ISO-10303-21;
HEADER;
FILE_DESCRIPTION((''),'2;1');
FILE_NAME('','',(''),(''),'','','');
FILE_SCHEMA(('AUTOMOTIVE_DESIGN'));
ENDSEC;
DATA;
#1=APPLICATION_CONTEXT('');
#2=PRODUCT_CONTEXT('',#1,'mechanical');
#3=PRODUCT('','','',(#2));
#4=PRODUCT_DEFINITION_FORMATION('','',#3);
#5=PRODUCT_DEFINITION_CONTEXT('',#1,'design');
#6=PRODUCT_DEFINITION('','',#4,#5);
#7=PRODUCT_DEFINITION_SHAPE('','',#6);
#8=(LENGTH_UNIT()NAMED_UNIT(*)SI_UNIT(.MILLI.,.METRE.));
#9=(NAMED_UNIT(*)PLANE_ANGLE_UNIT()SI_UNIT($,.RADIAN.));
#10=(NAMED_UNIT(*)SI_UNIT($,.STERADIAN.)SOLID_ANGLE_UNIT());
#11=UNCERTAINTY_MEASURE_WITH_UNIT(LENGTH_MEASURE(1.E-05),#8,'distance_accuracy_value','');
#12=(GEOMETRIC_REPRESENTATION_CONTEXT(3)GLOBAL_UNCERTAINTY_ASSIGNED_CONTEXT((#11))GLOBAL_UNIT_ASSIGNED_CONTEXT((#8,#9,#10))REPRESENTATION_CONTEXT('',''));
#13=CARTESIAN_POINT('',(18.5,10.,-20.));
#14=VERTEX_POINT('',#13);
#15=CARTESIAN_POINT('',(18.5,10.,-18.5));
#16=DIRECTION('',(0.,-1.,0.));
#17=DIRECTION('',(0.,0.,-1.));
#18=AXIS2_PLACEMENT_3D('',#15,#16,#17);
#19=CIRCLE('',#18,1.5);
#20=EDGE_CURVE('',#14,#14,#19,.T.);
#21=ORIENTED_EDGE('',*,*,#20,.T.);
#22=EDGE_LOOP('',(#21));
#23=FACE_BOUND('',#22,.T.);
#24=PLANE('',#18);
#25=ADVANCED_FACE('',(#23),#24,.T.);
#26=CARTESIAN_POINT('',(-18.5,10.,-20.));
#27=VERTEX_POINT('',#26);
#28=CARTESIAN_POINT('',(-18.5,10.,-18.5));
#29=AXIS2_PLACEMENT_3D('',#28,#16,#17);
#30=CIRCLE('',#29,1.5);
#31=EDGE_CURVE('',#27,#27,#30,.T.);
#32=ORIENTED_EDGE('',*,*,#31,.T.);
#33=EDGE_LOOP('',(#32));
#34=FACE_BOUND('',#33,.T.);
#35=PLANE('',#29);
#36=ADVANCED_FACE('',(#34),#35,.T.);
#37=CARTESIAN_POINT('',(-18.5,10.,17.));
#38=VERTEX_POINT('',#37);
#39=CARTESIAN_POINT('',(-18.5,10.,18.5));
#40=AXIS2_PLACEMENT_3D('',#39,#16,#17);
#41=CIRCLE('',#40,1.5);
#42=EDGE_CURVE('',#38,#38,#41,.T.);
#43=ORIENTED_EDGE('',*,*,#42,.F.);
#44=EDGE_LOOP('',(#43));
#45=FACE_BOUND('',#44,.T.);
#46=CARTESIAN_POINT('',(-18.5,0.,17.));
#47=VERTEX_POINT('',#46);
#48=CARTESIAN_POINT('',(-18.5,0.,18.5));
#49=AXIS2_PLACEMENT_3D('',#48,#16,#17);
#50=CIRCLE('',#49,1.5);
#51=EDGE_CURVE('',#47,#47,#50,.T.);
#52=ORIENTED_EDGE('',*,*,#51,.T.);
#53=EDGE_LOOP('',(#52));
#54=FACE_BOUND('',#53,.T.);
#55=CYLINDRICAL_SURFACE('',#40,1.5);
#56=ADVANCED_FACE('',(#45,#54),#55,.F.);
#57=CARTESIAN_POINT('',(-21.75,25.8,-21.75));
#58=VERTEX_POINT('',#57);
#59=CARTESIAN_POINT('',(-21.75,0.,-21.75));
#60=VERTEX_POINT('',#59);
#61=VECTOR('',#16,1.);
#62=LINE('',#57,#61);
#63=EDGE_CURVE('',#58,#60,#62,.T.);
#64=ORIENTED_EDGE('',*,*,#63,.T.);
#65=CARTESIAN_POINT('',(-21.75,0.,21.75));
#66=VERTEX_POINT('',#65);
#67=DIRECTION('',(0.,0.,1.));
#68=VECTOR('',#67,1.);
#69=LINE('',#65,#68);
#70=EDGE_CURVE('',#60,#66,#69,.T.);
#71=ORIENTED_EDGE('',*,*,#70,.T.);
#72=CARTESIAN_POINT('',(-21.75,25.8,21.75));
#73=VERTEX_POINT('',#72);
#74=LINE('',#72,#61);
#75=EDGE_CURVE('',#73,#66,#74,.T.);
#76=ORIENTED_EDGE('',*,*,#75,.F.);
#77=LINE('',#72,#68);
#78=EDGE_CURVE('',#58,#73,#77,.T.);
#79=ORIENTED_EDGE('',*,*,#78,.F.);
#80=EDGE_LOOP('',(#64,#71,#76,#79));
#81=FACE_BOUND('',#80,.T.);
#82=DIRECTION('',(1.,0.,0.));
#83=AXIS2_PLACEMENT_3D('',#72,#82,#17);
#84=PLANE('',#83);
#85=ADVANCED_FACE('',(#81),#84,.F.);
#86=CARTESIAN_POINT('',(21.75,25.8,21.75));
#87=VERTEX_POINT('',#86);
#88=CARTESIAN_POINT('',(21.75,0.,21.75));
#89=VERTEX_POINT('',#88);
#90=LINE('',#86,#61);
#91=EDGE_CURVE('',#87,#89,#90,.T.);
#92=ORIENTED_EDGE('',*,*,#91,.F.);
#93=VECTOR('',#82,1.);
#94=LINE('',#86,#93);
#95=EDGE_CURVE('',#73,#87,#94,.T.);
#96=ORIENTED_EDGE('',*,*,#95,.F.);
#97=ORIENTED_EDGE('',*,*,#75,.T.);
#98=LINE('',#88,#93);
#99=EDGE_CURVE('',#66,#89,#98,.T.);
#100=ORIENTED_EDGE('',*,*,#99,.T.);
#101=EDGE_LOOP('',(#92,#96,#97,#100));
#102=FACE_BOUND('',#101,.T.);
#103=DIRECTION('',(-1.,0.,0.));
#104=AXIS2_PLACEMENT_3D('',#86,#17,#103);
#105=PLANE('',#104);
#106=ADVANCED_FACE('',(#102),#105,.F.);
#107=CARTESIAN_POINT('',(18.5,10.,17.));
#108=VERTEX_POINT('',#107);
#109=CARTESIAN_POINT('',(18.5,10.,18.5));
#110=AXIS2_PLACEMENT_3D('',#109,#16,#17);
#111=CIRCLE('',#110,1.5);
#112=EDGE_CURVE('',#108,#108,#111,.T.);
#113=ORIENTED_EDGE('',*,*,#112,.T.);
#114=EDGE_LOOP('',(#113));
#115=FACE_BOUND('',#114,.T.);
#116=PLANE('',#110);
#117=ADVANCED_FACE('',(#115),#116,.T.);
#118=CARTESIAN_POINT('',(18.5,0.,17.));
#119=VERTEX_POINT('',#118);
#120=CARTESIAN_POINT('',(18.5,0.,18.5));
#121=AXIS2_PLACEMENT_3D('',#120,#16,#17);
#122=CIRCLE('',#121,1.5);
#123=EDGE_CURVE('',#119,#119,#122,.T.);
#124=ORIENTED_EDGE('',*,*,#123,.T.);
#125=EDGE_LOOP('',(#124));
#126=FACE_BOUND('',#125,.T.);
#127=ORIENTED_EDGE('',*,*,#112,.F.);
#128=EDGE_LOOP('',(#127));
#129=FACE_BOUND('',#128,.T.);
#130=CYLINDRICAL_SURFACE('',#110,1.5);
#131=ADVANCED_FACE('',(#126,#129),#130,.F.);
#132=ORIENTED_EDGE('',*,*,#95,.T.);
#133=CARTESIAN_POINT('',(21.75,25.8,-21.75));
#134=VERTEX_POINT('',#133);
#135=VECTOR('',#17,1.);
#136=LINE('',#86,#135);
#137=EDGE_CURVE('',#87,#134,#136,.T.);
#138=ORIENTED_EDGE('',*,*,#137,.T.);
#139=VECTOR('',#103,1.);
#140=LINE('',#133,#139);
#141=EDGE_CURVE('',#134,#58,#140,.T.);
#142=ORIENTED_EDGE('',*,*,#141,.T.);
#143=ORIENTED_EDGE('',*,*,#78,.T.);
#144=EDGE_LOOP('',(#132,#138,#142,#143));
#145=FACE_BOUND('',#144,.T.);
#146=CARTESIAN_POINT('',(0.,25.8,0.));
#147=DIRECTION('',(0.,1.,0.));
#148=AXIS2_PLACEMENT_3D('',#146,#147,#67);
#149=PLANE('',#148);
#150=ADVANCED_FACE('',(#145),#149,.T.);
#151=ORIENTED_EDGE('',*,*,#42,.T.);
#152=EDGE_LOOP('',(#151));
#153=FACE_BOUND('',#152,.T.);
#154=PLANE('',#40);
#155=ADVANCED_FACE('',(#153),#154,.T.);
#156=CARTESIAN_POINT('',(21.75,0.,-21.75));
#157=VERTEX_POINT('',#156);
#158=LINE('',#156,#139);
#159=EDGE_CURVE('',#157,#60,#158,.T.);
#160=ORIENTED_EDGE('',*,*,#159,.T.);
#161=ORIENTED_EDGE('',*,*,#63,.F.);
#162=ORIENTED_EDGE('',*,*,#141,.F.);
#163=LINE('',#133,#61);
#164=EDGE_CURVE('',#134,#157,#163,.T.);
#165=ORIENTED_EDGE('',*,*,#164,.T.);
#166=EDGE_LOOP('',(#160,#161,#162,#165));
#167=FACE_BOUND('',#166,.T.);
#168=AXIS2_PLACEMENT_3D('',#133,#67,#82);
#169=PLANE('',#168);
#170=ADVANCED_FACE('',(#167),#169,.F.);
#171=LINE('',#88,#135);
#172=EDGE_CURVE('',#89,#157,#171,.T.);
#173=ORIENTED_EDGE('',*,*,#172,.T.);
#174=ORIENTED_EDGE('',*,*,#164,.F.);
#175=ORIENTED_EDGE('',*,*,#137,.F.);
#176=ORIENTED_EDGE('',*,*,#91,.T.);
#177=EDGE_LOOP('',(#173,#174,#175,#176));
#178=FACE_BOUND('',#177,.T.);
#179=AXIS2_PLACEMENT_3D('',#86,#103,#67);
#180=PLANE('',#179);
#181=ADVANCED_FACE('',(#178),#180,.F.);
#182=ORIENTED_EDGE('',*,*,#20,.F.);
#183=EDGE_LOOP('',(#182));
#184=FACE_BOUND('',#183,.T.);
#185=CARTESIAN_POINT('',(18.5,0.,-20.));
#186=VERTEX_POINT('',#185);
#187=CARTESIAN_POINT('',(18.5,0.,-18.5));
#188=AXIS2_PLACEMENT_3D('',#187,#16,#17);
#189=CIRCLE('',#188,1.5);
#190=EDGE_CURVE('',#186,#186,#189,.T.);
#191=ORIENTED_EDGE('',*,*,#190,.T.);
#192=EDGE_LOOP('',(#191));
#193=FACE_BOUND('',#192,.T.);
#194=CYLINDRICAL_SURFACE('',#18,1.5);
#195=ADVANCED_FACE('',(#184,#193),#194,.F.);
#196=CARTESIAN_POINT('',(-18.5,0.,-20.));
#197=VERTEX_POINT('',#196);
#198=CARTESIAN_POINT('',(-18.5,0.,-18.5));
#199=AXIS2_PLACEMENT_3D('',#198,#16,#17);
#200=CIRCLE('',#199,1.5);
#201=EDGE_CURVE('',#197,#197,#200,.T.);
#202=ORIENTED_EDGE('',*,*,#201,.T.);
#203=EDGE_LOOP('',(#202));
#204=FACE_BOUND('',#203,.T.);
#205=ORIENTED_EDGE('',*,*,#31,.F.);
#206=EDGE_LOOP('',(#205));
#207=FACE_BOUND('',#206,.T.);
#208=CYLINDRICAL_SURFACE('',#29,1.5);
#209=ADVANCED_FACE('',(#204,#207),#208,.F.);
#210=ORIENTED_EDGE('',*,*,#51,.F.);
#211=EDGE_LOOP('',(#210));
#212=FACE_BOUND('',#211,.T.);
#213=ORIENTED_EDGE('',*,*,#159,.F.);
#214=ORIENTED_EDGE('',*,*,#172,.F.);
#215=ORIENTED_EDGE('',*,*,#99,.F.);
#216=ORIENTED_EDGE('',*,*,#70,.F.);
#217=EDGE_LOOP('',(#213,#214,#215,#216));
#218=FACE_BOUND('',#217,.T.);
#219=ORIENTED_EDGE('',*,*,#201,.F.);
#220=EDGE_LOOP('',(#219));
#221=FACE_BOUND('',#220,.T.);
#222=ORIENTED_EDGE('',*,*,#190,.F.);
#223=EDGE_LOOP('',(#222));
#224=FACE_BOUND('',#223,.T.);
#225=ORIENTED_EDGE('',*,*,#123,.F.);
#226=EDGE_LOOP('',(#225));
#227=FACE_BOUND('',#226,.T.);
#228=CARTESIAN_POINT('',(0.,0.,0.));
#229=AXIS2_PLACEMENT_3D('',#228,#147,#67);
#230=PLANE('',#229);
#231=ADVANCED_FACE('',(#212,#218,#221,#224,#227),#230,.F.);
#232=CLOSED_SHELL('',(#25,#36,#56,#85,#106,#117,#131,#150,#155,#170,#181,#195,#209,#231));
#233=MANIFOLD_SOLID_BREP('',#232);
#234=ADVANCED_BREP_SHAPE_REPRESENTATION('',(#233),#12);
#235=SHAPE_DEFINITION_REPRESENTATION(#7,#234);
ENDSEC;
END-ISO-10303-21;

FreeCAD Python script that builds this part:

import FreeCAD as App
import Part
import Sketcher
from FreeCAD import Vector
Q = App.Units.Quantity

doc = App.newDocument("Part")
body = doc.addObject("PartDesign::Body", "Body")

# Sketch on XZ plane
sketch1 = body.newObject("Sketcher::SketchObject", "Sketch")
sketch1.AttachmentSupport = (doc.getObject("XZ_Plane"), [""])
sketch1.MapMode = "FlatFace"
sketch1.addGeometry([
    Part.LineSegment(Vector(-22, -22, 0), Vector(-22, 22, 0)),
    Part.LineSegment(Vector(-22, 22, 0), Vector(22, 22, 0)),
    Part.LineSegment(Vector(22, 22, 0), Vector(22, -22, 0)),
    Part.LineSegment(Vector(22, -22, 0), Vector(-22, -22, 0)),
], False)
sketch1.addConstraint([
    Sketcher.Constraint("Coincident", 0, 2, 1, 1),
    Sketcher.Constraint("Coincident", 1, 2, 2, 1),
    Sketcher.Constraint("Coincident", 2, 2, 3, 1),
    Sketcher.Constraint("Coincident", 3, 2, 0, 1),
    Sketcher.Constraint("Vertical", 0),
    Sketcher.Constraint("Horizontal", 1),
    Sketcher.Constraint("Vertical", 2),
    Sketcher.Constraint("Horizontal", 3),
    Sketcher.Constraint("Symmetric", 0, 2, 2, 2, -1, 1),
    Sketcher.Constraint("Equal", 3, 0),
    Sketcher.Constraint("DistanceX", 1, 1, 1, 2, Q("43.5 mm")),
])
pad1 = body.newObject("PartDesign::Pad", "Pad")
pad1.Profile = sketch1
pad1.Length = 25.8
pad1.Reversed = True

# Sketch on XZ plane
sketch2 = body.newObject("Sketcher::SketchObject", "Sketch001")
sketch2.AttachmentSupport = (doc.getObject("XZ_Plane"), [""])
sketch2.MapMode = "FlatFace"
sketch2.addGeometry([
    Part.Circle(Vector(-18.5, 18.5, 0), Vector(0, 0, 1), 1.5),
    Part.Circle(Vector(18.5, 18.5, 0), Vector(0, 0, 1), 1.5),
    Part.Circle(Vector(-18.5, -18.5, 0), Vector(0, 0, 1), 1.5),
    Part.Circle(Vector(18.5, -18.5, 0), Vector(0, 0, 1), 1.5),
], False)
sketch2.addConstraint([
    Sketcher.Constraint("Equal", 0, 1),
    Sketcher.Constraint("Equal", 1, 2),
    Sketcher.Constraint("Equal", 2, 3),
    Sketcher.Constraint("Symmetric", 1, 3, 2, 3, -1, 1),
    Sketcher.Constraint("Symmetric", 0, 3, 3, 3, -1, 1),
    Sketcher.Constraint("Symmetric", 0, 3, 1, 3, -2),
    Sketcher.Constraint("Diameter", 0, Q("3 mm")),
    Sketcher.Constraint("DistanceX", 0, 3, 1, 3, Q("37 mm")),
    Sketcher.Constraint("DistanceY", 2, 3, 0, 3, Q("37 mm")),
])
pocket1 = body.newObject("PartDesign::Pocket", "Pocket")
pocket1.Profile = sketch2
pocket1.Length = 10

doc.recompute()
